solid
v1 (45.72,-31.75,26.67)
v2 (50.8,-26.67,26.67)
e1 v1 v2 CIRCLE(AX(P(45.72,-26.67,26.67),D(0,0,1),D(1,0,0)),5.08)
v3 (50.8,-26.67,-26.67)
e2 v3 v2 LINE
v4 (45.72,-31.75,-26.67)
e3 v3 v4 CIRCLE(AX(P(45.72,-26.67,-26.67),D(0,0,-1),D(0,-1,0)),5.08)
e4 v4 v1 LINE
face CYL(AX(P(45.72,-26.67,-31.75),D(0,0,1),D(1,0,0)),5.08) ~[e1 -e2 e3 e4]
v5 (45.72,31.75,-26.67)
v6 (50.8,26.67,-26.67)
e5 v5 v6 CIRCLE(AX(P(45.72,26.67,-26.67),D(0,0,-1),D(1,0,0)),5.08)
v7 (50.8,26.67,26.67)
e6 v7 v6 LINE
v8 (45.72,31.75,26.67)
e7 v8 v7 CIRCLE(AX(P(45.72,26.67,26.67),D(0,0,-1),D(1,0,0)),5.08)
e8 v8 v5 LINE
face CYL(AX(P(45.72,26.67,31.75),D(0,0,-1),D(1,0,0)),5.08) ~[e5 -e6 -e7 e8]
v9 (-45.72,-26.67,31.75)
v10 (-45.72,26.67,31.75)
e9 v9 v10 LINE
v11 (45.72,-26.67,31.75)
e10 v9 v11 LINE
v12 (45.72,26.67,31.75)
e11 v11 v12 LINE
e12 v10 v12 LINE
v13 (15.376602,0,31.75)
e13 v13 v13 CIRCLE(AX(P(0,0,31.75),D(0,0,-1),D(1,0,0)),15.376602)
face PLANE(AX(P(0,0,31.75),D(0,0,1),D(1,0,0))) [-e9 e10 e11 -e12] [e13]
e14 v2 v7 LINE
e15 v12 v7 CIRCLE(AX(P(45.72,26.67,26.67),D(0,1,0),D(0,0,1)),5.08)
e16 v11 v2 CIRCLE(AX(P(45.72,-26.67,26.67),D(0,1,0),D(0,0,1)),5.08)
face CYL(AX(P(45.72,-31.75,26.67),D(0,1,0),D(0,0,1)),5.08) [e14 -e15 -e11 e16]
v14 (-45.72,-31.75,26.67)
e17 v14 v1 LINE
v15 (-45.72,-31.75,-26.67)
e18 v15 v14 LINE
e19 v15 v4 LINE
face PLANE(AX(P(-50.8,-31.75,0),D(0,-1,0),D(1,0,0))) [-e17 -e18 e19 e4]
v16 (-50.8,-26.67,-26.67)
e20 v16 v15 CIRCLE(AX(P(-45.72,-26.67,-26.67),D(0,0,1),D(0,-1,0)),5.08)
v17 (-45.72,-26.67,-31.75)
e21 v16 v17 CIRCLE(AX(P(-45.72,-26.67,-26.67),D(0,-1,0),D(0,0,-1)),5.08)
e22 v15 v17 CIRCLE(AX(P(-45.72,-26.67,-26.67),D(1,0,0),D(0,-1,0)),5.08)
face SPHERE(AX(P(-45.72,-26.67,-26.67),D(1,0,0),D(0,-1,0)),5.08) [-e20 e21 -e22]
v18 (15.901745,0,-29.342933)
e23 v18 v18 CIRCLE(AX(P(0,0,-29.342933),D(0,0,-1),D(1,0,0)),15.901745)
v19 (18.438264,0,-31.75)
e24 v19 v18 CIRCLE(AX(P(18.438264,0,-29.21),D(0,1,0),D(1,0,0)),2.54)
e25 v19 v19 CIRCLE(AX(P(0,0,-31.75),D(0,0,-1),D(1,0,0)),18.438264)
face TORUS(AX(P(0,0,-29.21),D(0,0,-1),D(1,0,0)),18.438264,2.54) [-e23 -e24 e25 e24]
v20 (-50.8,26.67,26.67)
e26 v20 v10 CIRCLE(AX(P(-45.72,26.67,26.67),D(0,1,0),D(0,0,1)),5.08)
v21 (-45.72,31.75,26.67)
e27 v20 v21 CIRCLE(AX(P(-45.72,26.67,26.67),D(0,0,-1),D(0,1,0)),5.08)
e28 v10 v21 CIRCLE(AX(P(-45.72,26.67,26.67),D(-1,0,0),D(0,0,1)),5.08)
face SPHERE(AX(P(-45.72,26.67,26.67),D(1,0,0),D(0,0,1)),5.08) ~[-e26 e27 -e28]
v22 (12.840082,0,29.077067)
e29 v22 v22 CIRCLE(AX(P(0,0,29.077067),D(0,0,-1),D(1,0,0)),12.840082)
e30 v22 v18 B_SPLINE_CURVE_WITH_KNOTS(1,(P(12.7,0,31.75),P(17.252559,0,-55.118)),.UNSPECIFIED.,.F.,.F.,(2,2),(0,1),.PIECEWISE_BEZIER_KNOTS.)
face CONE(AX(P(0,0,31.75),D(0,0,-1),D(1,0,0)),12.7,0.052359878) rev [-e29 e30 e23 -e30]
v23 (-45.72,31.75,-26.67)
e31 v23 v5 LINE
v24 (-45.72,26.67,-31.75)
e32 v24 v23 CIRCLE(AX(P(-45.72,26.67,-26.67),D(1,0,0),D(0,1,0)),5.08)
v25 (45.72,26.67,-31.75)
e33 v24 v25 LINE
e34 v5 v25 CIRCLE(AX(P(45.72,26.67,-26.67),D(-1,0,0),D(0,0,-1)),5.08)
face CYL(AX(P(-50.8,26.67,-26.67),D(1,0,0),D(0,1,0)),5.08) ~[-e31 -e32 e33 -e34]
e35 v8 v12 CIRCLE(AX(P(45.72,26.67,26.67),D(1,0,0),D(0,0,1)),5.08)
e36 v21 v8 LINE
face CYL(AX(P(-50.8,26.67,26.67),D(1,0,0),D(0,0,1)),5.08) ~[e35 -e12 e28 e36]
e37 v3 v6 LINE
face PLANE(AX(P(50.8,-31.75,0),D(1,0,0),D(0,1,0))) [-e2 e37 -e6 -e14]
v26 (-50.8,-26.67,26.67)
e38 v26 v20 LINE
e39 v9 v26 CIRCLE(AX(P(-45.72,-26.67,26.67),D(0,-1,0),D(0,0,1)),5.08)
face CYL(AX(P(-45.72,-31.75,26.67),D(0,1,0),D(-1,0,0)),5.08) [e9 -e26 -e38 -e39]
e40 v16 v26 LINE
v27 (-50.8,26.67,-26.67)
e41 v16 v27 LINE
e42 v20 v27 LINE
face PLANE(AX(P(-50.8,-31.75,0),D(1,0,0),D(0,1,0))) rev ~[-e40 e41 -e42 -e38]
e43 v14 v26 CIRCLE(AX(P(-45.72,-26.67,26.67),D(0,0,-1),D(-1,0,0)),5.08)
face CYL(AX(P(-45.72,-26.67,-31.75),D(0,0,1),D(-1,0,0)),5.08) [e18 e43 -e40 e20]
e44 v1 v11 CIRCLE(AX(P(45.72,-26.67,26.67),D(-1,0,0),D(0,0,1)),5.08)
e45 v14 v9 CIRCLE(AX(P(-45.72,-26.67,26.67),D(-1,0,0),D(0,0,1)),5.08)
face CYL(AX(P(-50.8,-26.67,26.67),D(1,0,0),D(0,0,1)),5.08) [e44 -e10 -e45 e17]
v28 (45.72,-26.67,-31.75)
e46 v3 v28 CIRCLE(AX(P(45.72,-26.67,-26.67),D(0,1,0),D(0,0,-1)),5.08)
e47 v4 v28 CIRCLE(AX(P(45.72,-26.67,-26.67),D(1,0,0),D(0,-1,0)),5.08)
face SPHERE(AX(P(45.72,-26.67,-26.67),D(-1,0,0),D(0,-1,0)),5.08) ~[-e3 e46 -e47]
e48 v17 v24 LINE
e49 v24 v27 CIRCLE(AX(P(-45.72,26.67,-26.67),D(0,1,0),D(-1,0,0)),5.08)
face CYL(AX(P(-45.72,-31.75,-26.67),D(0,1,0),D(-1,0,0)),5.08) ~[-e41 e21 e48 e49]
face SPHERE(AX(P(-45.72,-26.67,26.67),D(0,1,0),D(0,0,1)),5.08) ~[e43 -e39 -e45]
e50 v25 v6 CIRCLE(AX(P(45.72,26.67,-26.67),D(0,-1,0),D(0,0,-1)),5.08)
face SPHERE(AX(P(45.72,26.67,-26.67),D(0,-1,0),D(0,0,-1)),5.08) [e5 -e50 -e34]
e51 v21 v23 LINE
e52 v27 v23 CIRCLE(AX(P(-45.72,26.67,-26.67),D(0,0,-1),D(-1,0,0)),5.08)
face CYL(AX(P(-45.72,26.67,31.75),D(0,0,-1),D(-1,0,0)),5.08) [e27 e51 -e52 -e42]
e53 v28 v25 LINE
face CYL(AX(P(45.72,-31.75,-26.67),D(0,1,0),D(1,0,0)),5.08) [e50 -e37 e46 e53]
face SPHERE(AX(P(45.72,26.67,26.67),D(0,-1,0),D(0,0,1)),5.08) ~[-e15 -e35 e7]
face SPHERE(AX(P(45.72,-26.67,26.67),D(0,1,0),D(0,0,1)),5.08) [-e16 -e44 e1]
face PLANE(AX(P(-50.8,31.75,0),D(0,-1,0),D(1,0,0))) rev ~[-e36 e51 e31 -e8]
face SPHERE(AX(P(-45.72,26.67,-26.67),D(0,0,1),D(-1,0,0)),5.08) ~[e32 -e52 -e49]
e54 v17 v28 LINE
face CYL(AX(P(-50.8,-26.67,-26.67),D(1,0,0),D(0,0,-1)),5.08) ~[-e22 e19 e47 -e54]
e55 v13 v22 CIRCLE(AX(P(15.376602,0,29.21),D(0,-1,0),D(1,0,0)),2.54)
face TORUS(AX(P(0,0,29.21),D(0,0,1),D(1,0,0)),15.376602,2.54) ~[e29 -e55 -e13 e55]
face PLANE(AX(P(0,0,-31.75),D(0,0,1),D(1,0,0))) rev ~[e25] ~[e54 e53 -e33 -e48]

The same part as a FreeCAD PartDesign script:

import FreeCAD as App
import Part
import Sketcher
from FreeCAD import Vector
Q = App.Units.Quantity


def edges_at(feature, points):
    """Names of the edges that pass closest to the given points."""
    edges = feature.Shape.Edges
    near = lambda p: min(range(len(edges)), key=lambda i: edges[i].distToShape(Part.Vertex(*p))[0])
    return sorted({f"Edge{near(p) + 1}" for p in points})


def add_polygon(sketch, points):
    """Adds a closed chain of lines whose ends are joined by coincident constraints."""
    first, n = sketch.GeometryCount, len(points)
    for a, b in zip(points, points[1:] + points[:1]):
        sketch.addGeometry(Part.LineSegment(App.Vector(*a, 0), App.Vector(*b, 0)), False)
    for i in range(n):
        sketch.addConstraint(Sketcher.Constraint("Coincident", first + i, 2, first + (i + 1) % n, 1))

doc = App.newDocument("Part")
params = doc.addObject("Spreadsheet::Sheet", "Params")
for row, (alias, value) in enumerate([
    ("sketch1_width", "4 in"),
    ("sketch1_height", "2.5 in"),
    ("pad1_length", "2.5 in"),
    ("fillet_radius", "0.2 in"),
    ("sketch2_diameter", "1 in"),
    ("pocket1_length", "3.42 in"),
    ("pocket1_taper", "3 deg"),
    ("fillet2_radius", "0.1 in"),
], start=1):
    params.set(f"A{row}", alias)
    params.set(f"B{row}", "=" + value)
    params.setAlias(f"B{row}", alias)

body = doc.addObject("PartDesign::Body", "Body")

sketch1 = body.newObject("Sketcher::SketchObject", "Sketch")
sketch1.AttachmentSupport = (doc.getObject("XY_Plane"), [""])
sketch1.MapMode = "FlatFace"
add_polygon(sketch1, [(-51, 32), (-51, -32), (51, -32), (51, 32)])
sketch1.addConstraint(Sketcher.Constraint("Vertical", 0))
sketch1.addConstraint(Sketcher.Constraint("Horizontal", 1))
sketch1.addConstraint(Sketcher.Constraint("Vertical", 2))
sketch1.addConstraint(Sketcher.Constraint("Horizontal", 3))
sketch1.addConstraint(Sketcher.Constraint("Symmetric", 0, 2, 2, 2, -1, 1))
sketch1.addConstraint(Sketcher.Constraint("DistanceX", 1, 1, 1, 2, Q("4 in")))
sketch1.addConstraint(Sketcher.Constraint("DistanceY", 0, 2, 0, 1, Q("2.5 in")))
sketch1.setExpression("Constraints[9]", "Params.sketch1_width")
sketch1.setExpression("Constraints[10]", "Params.sketch1_height")
pad1 = body.newObject("PartDesign::Pad", "Pad")
pad1.Profile = sketch1
pad1.setExpression("Length", "Params.pad1_length")
pad1.Midplane = True
doc.recompute()

fillet = body.newObject("PartDesign::Fillet", "Fillet")
fillet.Base = (pad1, ["Edge1"])
fillet.UseAllEdges = True
fillet.setExpression("Radius", "Params.fillet_radius")

sketch2 = body.newObject("Sketcher::SketchObject", "Sketch001")
sketch2.AttachmentSupport = (doc.getObject("XY_Plane"), [""])
sketch2.MapMode = "FlatFace"
sketch2.AttachmentOffset = App.Placement(Vector(0, 0, 1.25 * 25.4), App.Rotation())
sketch2.addGeometry(Part.Circle(Vector(0, 0, 0), Vector(0, 0, 1), 13), False)
sketch2.addConstraint(Sketcher.Constraint("Coincident", 0, 3, -1, 1))
sketch2.addConstraint(Sketcher.Constraint("Diameter", 0, Q("1 in")))
sketch2.setExpression("Constraints[1]", "Params.sketch2_diameter")
pocket1 = body.newObject("PartDesign::Pocket", "Pocket")
pocket1.Profile = sketch2
pocket1.setExpression("Length", "Params.pocket1_length")
pocket1.setExpression("TaperAngle", "Params.pocket1_taper")
doc.recompute()

fillet2 = body.newObject("PartDesign::Fillet", "Fillet001")
fillet2.Base = (pocket1, edges_at(pocket1, [(-12.7, 0, 31.75), (-16.028, 0, -31.75)]))
fillet2.setExpression("Radius", "Params.fillet2_radius")

doc.recompute()
